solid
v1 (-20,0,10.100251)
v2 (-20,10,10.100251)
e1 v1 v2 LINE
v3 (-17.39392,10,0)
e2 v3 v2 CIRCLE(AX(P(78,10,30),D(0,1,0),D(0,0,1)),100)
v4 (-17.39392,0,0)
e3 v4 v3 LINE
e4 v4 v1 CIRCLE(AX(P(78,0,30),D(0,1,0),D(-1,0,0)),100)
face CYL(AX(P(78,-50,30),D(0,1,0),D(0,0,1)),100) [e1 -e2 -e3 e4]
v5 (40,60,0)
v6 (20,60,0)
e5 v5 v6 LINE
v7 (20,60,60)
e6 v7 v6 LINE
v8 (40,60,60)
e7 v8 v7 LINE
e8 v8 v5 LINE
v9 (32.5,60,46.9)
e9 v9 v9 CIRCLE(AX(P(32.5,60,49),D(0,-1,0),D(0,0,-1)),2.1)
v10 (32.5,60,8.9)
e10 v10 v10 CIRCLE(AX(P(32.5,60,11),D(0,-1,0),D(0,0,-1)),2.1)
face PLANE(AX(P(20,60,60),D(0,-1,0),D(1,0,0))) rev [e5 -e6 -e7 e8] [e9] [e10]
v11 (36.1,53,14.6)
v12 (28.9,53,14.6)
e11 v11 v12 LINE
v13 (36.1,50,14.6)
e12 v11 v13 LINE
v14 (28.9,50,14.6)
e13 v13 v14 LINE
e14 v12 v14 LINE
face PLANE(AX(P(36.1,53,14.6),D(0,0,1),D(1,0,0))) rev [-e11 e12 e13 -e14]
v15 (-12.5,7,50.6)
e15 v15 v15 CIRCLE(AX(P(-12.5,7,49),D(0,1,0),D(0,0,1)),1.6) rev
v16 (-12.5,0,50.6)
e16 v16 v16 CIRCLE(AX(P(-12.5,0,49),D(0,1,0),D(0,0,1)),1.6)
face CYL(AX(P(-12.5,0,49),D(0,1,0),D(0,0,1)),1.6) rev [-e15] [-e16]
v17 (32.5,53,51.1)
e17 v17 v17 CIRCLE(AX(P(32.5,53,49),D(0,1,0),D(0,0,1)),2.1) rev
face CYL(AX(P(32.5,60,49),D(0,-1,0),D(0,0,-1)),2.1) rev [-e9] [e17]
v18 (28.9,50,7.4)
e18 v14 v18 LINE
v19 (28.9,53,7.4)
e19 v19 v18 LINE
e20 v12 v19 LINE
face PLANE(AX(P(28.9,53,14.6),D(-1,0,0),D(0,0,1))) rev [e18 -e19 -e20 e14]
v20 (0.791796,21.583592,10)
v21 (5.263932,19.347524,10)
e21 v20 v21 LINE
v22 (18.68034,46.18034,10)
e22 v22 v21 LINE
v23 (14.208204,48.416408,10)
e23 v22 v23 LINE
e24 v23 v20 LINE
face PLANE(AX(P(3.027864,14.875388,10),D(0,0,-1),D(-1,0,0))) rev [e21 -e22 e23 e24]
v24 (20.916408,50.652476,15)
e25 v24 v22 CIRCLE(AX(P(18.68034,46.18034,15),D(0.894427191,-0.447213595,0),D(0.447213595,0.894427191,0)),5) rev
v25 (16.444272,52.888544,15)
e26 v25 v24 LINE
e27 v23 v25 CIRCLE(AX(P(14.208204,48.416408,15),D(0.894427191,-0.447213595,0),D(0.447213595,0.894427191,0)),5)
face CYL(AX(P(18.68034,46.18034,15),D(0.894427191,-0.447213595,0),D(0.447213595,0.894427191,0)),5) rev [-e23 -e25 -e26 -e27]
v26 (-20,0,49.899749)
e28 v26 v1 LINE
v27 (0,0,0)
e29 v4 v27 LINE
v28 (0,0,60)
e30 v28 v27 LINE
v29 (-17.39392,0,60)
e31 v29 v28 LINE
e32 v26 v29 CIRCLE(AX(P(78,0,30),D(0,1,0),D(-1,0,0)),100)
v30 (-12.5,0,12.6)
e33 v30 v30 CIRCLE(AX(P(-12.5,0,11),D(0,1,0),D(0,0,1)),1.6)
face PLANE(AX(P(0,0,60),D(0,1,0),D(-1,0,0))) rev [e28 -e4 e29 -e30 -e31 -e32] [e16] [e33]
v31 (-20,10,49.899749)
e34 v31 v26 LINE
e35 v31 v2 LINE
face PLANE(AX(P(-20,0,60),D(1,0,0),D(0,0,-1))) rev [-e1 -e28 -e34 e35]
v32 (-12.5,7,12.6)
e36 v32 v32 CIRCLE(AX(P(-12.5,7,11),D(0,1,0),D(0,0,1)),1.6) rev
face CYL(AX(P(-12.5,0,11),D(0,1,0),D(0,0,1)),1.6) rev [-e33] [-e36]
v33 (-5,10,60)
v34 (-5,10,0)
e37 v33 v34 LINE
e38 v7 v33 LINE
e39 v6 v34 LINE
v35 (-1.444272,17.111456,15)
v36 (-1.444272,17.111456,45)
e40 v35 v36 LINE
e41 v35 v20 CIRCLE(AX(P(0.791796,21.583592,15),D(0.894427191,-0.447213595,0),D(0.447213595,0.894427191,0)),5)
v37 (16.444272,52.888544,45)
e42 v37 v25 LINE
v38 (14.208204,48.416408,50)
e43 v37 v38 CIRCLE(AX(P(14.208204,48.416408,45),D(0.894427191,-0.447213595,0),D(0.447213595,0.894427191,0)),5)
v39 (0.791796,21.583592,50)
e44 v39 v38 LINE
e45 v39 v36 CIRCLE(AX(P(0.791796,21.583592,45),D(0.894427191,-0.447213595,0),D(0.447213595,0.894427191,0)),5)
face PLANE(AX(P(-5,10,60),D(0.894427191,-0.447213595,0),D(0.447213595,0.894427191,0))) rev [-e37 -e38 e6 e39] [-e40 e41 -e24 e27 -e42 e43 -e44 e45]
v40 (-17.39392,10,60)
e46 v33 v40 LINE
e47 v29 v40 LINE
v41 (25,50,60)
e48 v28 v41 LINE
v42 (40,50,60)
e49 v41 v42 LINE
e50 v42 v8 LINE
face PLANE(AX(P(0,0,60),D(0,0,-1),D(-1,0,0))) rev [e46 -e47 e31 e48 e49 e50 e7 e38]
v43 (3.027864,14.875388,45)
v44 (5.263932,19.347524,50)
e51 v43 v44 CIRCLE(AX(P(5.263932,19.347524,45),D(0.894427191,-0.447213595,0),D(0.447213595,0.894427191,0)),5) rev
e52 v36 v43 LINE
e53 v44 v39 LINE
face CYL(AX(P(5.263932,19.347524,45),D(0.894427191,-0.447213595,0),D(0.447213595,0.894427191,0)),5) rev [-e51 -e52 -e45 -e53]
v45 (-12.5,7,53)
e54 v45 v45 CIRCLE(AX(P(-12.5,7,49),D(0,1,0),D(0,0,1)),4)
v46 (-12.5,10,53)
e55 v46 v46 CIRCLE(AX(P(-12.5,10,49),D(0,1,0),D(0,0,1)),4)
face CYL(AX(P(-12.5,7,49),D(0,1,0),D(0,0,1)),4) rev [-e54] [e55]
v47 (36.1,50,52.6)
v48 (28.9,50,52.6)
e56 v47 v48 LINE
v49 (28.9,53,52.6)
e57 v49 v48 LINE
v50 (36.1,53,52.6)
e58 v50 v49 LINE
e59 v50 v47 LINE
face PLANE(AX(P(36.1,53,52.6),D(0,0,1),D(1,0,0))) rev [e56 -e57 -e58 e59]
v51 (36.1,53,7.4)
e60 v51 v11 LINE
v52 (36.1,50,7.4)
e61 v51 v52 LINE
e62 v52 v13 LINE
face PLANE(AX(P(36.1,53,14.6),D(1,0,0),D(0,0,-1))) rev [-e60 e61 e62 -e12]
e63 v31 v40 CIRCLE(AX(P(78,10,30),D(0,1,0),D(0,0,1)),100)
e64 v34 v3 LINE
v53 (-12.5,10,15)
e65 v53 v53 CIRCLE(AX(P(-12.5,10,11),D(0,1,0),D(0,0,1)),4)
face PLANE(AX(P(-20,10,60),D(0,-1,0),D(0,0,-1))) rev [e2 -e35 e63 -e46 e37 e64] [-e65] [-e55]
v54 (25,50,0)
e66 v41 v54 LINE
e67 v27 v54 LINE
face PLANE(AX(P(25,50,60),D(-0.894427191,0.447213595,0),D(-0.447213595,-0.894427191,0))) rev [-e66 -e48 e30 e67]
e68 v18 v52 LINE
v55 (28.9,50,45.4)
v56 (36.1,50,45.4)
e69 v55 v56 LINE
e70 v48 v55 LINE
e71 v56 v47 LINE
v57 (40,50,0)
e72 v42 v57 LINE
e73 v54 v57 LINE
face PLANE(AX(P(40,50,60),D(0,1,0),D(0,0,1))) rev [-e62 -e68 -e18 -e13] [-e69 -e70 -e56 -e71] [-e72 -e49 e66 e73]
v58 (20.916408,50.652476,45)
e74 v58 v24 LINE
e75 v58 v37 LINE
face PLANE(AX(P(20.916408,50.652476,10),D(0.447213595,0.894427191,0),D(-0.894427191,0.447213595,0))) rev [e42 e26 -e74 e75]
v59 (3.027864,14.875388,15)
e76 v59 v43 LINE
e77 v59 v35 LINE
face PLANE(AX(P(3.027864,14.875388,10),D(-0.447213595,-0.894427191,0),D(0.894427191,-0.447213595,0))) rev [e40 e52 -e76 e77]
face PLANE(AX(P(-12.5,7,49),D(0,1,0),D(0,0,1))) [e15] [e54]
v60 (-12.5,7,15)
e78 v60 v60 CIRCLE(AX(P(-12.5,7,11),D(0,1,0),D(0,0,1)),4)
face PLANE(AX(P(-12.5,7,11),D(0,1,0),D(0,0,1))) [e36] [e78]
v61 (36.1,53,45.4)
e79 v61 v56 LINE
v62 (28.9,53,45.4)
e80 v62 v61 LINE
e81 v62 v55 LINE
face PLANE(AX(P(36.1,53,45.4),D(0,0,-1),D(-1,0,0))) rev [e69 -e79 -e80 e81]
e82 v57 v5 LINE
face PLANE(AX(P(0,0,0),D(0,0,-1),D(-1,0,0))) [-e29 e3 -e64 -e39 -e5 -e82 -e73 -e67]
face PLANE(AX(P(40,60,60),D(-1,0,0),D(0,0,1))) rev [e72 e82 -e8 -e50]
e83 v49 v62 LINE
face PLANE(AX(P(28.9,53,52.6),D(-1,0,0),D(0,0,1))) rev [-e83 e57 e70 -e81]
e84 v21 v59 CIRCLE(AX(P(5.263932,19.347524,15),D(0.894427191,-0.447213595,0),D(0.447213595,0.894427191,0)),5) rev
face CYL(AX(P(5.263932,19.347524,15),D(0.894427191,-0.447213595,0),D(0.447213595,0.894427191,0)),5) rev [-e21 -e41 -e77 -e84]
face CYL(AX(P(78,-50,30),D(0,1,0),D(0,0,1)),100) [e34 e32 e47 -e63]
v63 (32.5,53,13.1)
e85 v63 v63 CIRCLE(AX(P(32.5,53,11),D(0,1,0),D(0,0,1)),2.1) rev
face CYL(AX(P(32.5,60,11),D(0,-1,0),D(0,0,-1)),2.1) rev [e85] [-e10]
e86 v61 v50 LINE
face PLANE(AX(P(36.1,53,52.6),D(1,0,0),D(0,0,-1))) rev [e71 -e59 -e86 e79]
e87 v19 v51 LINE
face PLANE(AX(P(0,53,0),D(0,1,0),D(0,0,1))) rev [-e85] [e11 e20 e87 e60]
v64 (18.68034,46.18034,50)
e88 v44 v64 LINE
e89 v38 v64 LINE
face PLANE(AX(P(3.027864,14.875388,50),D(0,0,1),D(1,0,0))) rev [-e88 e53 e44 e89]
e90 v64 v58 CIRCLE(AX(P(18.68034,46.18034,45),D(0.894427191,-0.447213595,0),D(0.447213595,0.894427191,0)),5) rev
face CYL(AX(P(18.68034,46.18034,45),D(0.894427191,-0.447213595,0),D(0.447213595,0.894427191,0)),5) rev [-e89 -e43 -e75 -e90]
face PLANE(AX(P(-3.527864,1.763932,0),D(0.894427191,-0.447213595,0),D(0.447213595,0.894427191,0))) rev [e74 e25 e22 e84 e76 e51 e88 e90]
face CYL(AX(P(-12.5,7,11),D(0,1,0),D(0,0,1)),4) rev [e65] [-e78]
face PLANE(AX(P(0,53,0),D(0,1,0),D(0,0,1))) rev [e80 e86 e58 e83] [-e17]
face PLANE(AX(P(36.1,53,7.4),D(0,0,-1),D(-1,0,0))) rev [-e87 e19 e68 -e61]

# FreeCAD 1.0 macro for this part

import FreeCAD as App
import Part
import Sketcher

V = App.Vector
Q = App.Units.Quantity


def edges_at(feature, points):
    """Names of the edges that pass closest to the given points."""
    edges = feature.Shape.Edges
    near = lambda p: min(range(len(edges)), key=lambda i: edges[i].distToShape(Part.Vertex(*p))[0])
    return sorted({f"Edge{near(p) + 1}" for p in points})

doc = App.newDocument("Part")
body = doc.addObject("PartDesign::Body", "Body")

sketch1 = body.newObject("Sketcher::SketchObject", "Sketch")
sketch1.AttachmentSupport = (doc.getObject("XY_Plane"), [""])
sketch1.MapMode = "FlatFace"
sketch1.addGeometry([
    Part.LineSegment(V(-20, 0, 0), V(0, 0, 0)),
    Part.LineSegment(V(0, 0, 0), V(25, 50, 0)),
    Part.LineSegment(V(25, 50, 0), V(40, 50, 0)),
    Part.LineSegment(V(40, 50, 0), V(40, 60, 0)),
    Part.LineSegment(V(40, 60, 0), V(20, 60, 0)),
    Part.LineSegment(V(20, 60, 0), V(-5, 10, 0)),
    Part.LineSegment(V(-5, 10, 0), V(-20, 10, 0)),
    Part.LineSegment(V(-20, 10, 0), V(-20, 0, 0)),
], False)
sketch1.addConstraint([
    Sketcher.Constraint("Coincident", 0, 2, 1, 1),
    Sketcher.Constraint("Coincident", 1, 2, 2, 1),
    Sketcher.Constraint("Coincident", 2, 2, 3, 1),
    Sketcher.Constraint("Coincident", 3, 2, 4, 1),
    Sketcher.Constraint("Coincident", 4, 2, 5, 1),
    Sketcher.Constraint("Coincident", 5, 2, 6, 1),
    Sketcher.Constraint("Coincident", 6, 2, 7, 1),
    Sketcher.Constraint("Coincident", 7, 2, 0, 1),
    Sketcher.Constraint("Horizontal", 0),
    Sketcher.Constraint("Horizontal", 2),
    Sketcher.Constraint("Vertical", 3),
    Sketcher.Constraint("Horizontal", 4),
    Sketcher.Constraint("Horizontal", 6),
    Sketcher.Constraint("Vertical", 7),
    Sketcher.Constraint("Coincident", 0, 2, -1, 1),
    Sketcher.Constraint("Parallel", 1, 5),
    Sketcher.Constraint("Equal", 0, 4),
    Sketcher.Constraint("Equal", 2, 6),
    Sketcher.Constraint("DistanceX", 0, 1, 0, 2, Q("20 mm")),
    Sketcher.Constraint("DistanceX", 2, 1, 2, 2, Q("15 mm")),
    Sketcher.Constraint("DistanceY", 3, 1, 3, 2, Q("10 mm")),
    Sketcher.Constraint("DistanceX", -1, 1, 1, 2, Q("25 mm")),
    Sketcher.Constraint("DistanceY", -1, 1, 1, 2, Q("50 mm")),
])
pad1 = body.newObject("PartDesign::Pad", "Pad")
pad1.Profile = sketch1
pad1.Length = 60

sketch2 = body.newObject("Sketcher::SketchObject", "Sketch001")
sketch2.AttachmentSupport = (doc.getObject("XZ_Plane"), [""])
sketch2.MapMode = "FlatFace"
sketch2.AttachmentOffset = App.Placement(V(0, 0, -10), App.Rotation())
sketch2.addGeometry([
    Part.Circle(V(78, 30, 0), V(0, 0, 1), 172),
    Part.Circle(V(78, 30, 0), V(0, 0, 1), 100),
], False)
sketch2.addConstraint([
    Sketcher.Constraint("Coincident", 1, 3, 0, 3),
    Sketcher.Constraint("Diameter", 1, Q("200 mm")),
    Sketcher.Constraint("DistanceX", -1, 1, 0, 3, Q("78 mm")),
    Sketcher.Constraint("DistanceY", -1, 1, 0, 3, Q("30 mm")),
    Sketcher.Constraint("Diameter", 0, Q("343.953519 mm")),
])
pocket1 = body.newObject("PartDesign::Pocket", "Pocket")
pocket1.Profile = sketch2
pocket1.Length = 60
pocket1.Reversed = True

sketch3 = body.newObject("Sketcher::SketchObject", "Sketch002")
sketch3.Placement = App.Placement(V(-8, 4, 0), App.Rotation(V(0, 0, 1), V(0.447213595, 0.894427191, 0), V(-0.894427191, 0.447213595, 0), "ZXY"))
sketch3.addGeometry([
    Part.LineSegment(V(10, 55, 0), V(10, 15, 0)),
    Part.LineSegment(V(10, 15, 0), V(50, 15, 0)),
    Part.LineSegment(V(50, 15, 0), V(50, 55, 0)),
    Part.LineSegment(V(50, 55, 0), V(10, 55, 0)),
], False)
sketch3.addConstraint([
    Sketcher.Constraint("Coincident", 0, 2, 1, 1),
    Sketcher.Constraint("Coincident", 1, 2, 2, 1),
    Sketcher.Constraint("Coincident", 2, 2, 3, 1),
    Sketcher.Constraint("Coincident", 3, 2, 0, 1),
    Sketcher.Constraint("Vertical", 0),
    Sketcher.Constraint("Horizontal", 1),
    Sketcher.Constraint("Vertical", 2),
    Sketcher.Constraint("Horizontal", 3),
    Sketcher.Constraint("Equal", 3, 0),
    Sketcher.Constraint("DistanceX", 1, 1, 1, 2, Q("40 mm")),
    Sketcher.Constraint("DistanceX", -1, 1, 0, 2, Q("10 mm")),
    Sketcher.Constraint("DistanceY", -1, 1, 0, 2, Q("14.659054 mm")),
])
pocket2 = body.newObject("PartDesign::Pocket", "Pocket001")
pocket2.Profile = sketch3
pocket2.Length = 5
doc.recompute()

fillet = body.newObject("PartDesign::Fillet", "Fillet")
fillet.Base = (pocket2, edges_at(pocket2, [
    (18.68, 51.771, 50),
    (0.792, 15.993, 50),
    (0.792, 15.993, 10),
    (18.68, 51.771, 10),
]))
fillet.Radius = 5

sketch4 = body.newObject("Sketcher::SketchObject", "Sketch003")
sketch4.AttachmentSupport = (doc.getObject("XZ_Plane"), [""])
sketch4.MapMode = "FlatFace"
sketch4.AttachmentOffset = App.Placement(V(0, 0, -10), App.Rotation())
sketch4.addGeometry([
    Part.Circle(V(-12.5, 49, 0), V(0, 0, 1), 1.6),
    Part.Circle(V(-12.5, 11, 0), V(0, 0, 1), 1.6),
], False)
sketch4.addConstraint([
    Sketcher.Constraint("Equal", 0, 1),
    Sketcher.Constraint("Vertical", 0, 3, 1, 3),
    Sketcher.Constraint("Diameter", 0, Q("3.2 mm")),
    Sketcher.Constraint("DistanceY", -1, 1, 0, 3, Q("49 mm")),
    Sketcher.Constraint("DistanceY", -1, 1, 1, 3, Q("11 mm")),
    Sketcher.Constraint("DistanceX", 0, 3, -1, 1, Q("12.5 mm")),
])
pocket3 = body.newObject("PartDesign::Pocket", "Pocket002")
pocket3.Profile = sketch4
pocket3.Length = 10
pocket3.Reversed = True

sketch5 = body.newObject("Sketcher::SketchObject", "Sketch004")
sketch5.AttachmentSupport = (doc.getObject("XZ_Plane"), [""])
sketch5.MapMode = "FlatFace"
sketch5.AttachmentOffset = App.Placement(V(0, 0, -10), App.Rotation())
sketch5.addGeometry([
    Part.Circle(V(-12.5, 49, 0), V(0, 0, 1), 4),
    Part.Circle(V(-12.5, 11, 0), V(0, 0, 1), 4),
], False)
sketch5.addConstraint([
    Sketcher.Constraint("Equal", 0, 1),
    Sketcher.Constraint("Vertical", 0, 3, 1, 3),
    Sketcher.Constraint("Diameter", 0, Q("8 mm")),
    Sketcher.Constraint("DistanceY", -1, 1, 0, 3, Q("49 mm")),
    Sketcher.Constraint("DistanceY", -1, 1, 1, 3, Q("11 mm")),
    Sketcher.Constraint("DistanceX", 0, 3, -1, 1, Q("12.5 mm")),
])
pocket4 = body.newObject("PartDesign::Pocket", "Pocket003")
pocket4.Profile = sketch5
pocket4.Length = 3
pocket4.Reversed = True

sketch6 = body.newObject("Sketcher::SketchObject", "Sketch005")
sketch6.AttachmentSupport = (doc.getObject("XZ_Plane"), [""])
sketch6.MapMode = "FlatFace"
sketch6.AttachmentOffset = App.Placement(V(0, 0, -50), App.Rotation())
sketch6.addGeometry([
    Part.Circle(V(32.5, 11, 0), V(0, 0, 1), 2.1),
    Part.Circle(V(32.5, 49, 0), V(0, 0, 1), 2.1),
], False)
sketch6.addConstraint([
    Sketcher.Constraint("Equal", 0, 1),
    Sketcher.Constraint("Vertical", 0, 3, 1, 3),
    Sketcher.Constraint("Diameter", 0, Q("4.2 mm")),
    Sketcher.Constraint("DistanceY", -1, 1, 0, 3, Q("11 mm")),
    Sketcher.Constraint("DistanceY", -1, 1, 1, 3, Q("49 mm")),
    Sketcher.Constraint("DistanceX", -1, 1, 0, 3, Q("32.5 mm")),
])
pocket5 = body.newObject("PartDesign::Pocket", "Pocket004")
pocket5.Profile = sketch6
pocket5.Type = "ThroughAll"

sketch7 = body.newObject("Sketcher::SketchObject", "Sketch006")
sketch7.AttachmentSupport = (doc.getObject("XZ_Plane"), [""])
sketch7.MapMode = "FlatFace"
sketch7.AttachmentOffset = App.Placement(V(0, 0, -50), App.Rotation())
sketch7.addGeometry([
    Part.LineSegment(V(29, 15, 0), V(29, 7, 0)),
    Part.LineSegment(V(29, 7, 0), V(36, 7, 0)),
    Part.LineSegment(V(36, 7, 0), V(36, 15, 0)),
    Part.LineSegment(V(36, 15, 0), V(29, 15, 0)),
    Part.LineSegment(V(29, 53, 0), V(29, 45, 0)),
    Part.LineSegment(V(29, 45, 0), V(36, 45, 0)),
    Part.LineSegment(V(36, 45, 0), V(36, 53, 0)),
    Part.LineSegment(V(36, 53, 0), V(29, 53, 0)),
], False)
sketch7.addConstraint([
    Sketcher.Constraint("Coincident", 0, 2, 1, 1),
    Sketcher.Constraint("Coincident", 1, 2, 2, 1),
    Sketcher.Constraint("Coincident", 2, 2, 3, 1),
    Sketcher.Constraint("Coincident", 3, 2, 0, 1),
    Sketcher.Constraint("Coincident", 4, 2, 5, 1),
    Sketcher.Constraint("Coincident", 5, 2, 6, 1),
    Sketcher.Constraint("Coincident", 6, 2, 7, 1),
    Sketcher.Constraint("Coincident", 7, 2, 4, 1),
    Sketcher.Constraint("Vertical", 0),
    Sketcher.Constraint("Horizontal", 1),
    Sketcher.Constraint("Vertical", 2),
    Sketcher.Constraint("Horizontal", 3),
    Sketcher.Constraint("Vertical", 4),
    Sketcher.Constraint("Horizontal", 5),
    Sketcher.Constraint("Vertical", 6),
    Sketcher.Constraint("Horizontal", 7),
    Sketcher.Constraint("Vertical", 3, 2, 4, 2),
    Sketcher.Constraint("Vertical", 2, 2, 5, 2),
    Sketcher.Constraint("Equal", 7, 0),
    Sketcher.Constraint("Equal", 2, 4),
    Sketcher.Constraint("DistanceX", 1, 1, 1, 2, Q("7.2 mm")),
    Sketcher.Constraint("DistanceY", 0, 2, 4, 2, Q("38 mm")),
    Sketcher.Constraint("DistanceX", -1, 1, 0, 2, Q("28.9 mm")),
    Sketcher.Constraint("DistanceY", -1, 1, 0, 2, Q("7.4 mm")),
])
pocket6 = body.newObject("PartDesign::Pocket", "Pocket005")
pocket6.Profile = sketch7
pocket6.Length = 3

doc.recompute()
